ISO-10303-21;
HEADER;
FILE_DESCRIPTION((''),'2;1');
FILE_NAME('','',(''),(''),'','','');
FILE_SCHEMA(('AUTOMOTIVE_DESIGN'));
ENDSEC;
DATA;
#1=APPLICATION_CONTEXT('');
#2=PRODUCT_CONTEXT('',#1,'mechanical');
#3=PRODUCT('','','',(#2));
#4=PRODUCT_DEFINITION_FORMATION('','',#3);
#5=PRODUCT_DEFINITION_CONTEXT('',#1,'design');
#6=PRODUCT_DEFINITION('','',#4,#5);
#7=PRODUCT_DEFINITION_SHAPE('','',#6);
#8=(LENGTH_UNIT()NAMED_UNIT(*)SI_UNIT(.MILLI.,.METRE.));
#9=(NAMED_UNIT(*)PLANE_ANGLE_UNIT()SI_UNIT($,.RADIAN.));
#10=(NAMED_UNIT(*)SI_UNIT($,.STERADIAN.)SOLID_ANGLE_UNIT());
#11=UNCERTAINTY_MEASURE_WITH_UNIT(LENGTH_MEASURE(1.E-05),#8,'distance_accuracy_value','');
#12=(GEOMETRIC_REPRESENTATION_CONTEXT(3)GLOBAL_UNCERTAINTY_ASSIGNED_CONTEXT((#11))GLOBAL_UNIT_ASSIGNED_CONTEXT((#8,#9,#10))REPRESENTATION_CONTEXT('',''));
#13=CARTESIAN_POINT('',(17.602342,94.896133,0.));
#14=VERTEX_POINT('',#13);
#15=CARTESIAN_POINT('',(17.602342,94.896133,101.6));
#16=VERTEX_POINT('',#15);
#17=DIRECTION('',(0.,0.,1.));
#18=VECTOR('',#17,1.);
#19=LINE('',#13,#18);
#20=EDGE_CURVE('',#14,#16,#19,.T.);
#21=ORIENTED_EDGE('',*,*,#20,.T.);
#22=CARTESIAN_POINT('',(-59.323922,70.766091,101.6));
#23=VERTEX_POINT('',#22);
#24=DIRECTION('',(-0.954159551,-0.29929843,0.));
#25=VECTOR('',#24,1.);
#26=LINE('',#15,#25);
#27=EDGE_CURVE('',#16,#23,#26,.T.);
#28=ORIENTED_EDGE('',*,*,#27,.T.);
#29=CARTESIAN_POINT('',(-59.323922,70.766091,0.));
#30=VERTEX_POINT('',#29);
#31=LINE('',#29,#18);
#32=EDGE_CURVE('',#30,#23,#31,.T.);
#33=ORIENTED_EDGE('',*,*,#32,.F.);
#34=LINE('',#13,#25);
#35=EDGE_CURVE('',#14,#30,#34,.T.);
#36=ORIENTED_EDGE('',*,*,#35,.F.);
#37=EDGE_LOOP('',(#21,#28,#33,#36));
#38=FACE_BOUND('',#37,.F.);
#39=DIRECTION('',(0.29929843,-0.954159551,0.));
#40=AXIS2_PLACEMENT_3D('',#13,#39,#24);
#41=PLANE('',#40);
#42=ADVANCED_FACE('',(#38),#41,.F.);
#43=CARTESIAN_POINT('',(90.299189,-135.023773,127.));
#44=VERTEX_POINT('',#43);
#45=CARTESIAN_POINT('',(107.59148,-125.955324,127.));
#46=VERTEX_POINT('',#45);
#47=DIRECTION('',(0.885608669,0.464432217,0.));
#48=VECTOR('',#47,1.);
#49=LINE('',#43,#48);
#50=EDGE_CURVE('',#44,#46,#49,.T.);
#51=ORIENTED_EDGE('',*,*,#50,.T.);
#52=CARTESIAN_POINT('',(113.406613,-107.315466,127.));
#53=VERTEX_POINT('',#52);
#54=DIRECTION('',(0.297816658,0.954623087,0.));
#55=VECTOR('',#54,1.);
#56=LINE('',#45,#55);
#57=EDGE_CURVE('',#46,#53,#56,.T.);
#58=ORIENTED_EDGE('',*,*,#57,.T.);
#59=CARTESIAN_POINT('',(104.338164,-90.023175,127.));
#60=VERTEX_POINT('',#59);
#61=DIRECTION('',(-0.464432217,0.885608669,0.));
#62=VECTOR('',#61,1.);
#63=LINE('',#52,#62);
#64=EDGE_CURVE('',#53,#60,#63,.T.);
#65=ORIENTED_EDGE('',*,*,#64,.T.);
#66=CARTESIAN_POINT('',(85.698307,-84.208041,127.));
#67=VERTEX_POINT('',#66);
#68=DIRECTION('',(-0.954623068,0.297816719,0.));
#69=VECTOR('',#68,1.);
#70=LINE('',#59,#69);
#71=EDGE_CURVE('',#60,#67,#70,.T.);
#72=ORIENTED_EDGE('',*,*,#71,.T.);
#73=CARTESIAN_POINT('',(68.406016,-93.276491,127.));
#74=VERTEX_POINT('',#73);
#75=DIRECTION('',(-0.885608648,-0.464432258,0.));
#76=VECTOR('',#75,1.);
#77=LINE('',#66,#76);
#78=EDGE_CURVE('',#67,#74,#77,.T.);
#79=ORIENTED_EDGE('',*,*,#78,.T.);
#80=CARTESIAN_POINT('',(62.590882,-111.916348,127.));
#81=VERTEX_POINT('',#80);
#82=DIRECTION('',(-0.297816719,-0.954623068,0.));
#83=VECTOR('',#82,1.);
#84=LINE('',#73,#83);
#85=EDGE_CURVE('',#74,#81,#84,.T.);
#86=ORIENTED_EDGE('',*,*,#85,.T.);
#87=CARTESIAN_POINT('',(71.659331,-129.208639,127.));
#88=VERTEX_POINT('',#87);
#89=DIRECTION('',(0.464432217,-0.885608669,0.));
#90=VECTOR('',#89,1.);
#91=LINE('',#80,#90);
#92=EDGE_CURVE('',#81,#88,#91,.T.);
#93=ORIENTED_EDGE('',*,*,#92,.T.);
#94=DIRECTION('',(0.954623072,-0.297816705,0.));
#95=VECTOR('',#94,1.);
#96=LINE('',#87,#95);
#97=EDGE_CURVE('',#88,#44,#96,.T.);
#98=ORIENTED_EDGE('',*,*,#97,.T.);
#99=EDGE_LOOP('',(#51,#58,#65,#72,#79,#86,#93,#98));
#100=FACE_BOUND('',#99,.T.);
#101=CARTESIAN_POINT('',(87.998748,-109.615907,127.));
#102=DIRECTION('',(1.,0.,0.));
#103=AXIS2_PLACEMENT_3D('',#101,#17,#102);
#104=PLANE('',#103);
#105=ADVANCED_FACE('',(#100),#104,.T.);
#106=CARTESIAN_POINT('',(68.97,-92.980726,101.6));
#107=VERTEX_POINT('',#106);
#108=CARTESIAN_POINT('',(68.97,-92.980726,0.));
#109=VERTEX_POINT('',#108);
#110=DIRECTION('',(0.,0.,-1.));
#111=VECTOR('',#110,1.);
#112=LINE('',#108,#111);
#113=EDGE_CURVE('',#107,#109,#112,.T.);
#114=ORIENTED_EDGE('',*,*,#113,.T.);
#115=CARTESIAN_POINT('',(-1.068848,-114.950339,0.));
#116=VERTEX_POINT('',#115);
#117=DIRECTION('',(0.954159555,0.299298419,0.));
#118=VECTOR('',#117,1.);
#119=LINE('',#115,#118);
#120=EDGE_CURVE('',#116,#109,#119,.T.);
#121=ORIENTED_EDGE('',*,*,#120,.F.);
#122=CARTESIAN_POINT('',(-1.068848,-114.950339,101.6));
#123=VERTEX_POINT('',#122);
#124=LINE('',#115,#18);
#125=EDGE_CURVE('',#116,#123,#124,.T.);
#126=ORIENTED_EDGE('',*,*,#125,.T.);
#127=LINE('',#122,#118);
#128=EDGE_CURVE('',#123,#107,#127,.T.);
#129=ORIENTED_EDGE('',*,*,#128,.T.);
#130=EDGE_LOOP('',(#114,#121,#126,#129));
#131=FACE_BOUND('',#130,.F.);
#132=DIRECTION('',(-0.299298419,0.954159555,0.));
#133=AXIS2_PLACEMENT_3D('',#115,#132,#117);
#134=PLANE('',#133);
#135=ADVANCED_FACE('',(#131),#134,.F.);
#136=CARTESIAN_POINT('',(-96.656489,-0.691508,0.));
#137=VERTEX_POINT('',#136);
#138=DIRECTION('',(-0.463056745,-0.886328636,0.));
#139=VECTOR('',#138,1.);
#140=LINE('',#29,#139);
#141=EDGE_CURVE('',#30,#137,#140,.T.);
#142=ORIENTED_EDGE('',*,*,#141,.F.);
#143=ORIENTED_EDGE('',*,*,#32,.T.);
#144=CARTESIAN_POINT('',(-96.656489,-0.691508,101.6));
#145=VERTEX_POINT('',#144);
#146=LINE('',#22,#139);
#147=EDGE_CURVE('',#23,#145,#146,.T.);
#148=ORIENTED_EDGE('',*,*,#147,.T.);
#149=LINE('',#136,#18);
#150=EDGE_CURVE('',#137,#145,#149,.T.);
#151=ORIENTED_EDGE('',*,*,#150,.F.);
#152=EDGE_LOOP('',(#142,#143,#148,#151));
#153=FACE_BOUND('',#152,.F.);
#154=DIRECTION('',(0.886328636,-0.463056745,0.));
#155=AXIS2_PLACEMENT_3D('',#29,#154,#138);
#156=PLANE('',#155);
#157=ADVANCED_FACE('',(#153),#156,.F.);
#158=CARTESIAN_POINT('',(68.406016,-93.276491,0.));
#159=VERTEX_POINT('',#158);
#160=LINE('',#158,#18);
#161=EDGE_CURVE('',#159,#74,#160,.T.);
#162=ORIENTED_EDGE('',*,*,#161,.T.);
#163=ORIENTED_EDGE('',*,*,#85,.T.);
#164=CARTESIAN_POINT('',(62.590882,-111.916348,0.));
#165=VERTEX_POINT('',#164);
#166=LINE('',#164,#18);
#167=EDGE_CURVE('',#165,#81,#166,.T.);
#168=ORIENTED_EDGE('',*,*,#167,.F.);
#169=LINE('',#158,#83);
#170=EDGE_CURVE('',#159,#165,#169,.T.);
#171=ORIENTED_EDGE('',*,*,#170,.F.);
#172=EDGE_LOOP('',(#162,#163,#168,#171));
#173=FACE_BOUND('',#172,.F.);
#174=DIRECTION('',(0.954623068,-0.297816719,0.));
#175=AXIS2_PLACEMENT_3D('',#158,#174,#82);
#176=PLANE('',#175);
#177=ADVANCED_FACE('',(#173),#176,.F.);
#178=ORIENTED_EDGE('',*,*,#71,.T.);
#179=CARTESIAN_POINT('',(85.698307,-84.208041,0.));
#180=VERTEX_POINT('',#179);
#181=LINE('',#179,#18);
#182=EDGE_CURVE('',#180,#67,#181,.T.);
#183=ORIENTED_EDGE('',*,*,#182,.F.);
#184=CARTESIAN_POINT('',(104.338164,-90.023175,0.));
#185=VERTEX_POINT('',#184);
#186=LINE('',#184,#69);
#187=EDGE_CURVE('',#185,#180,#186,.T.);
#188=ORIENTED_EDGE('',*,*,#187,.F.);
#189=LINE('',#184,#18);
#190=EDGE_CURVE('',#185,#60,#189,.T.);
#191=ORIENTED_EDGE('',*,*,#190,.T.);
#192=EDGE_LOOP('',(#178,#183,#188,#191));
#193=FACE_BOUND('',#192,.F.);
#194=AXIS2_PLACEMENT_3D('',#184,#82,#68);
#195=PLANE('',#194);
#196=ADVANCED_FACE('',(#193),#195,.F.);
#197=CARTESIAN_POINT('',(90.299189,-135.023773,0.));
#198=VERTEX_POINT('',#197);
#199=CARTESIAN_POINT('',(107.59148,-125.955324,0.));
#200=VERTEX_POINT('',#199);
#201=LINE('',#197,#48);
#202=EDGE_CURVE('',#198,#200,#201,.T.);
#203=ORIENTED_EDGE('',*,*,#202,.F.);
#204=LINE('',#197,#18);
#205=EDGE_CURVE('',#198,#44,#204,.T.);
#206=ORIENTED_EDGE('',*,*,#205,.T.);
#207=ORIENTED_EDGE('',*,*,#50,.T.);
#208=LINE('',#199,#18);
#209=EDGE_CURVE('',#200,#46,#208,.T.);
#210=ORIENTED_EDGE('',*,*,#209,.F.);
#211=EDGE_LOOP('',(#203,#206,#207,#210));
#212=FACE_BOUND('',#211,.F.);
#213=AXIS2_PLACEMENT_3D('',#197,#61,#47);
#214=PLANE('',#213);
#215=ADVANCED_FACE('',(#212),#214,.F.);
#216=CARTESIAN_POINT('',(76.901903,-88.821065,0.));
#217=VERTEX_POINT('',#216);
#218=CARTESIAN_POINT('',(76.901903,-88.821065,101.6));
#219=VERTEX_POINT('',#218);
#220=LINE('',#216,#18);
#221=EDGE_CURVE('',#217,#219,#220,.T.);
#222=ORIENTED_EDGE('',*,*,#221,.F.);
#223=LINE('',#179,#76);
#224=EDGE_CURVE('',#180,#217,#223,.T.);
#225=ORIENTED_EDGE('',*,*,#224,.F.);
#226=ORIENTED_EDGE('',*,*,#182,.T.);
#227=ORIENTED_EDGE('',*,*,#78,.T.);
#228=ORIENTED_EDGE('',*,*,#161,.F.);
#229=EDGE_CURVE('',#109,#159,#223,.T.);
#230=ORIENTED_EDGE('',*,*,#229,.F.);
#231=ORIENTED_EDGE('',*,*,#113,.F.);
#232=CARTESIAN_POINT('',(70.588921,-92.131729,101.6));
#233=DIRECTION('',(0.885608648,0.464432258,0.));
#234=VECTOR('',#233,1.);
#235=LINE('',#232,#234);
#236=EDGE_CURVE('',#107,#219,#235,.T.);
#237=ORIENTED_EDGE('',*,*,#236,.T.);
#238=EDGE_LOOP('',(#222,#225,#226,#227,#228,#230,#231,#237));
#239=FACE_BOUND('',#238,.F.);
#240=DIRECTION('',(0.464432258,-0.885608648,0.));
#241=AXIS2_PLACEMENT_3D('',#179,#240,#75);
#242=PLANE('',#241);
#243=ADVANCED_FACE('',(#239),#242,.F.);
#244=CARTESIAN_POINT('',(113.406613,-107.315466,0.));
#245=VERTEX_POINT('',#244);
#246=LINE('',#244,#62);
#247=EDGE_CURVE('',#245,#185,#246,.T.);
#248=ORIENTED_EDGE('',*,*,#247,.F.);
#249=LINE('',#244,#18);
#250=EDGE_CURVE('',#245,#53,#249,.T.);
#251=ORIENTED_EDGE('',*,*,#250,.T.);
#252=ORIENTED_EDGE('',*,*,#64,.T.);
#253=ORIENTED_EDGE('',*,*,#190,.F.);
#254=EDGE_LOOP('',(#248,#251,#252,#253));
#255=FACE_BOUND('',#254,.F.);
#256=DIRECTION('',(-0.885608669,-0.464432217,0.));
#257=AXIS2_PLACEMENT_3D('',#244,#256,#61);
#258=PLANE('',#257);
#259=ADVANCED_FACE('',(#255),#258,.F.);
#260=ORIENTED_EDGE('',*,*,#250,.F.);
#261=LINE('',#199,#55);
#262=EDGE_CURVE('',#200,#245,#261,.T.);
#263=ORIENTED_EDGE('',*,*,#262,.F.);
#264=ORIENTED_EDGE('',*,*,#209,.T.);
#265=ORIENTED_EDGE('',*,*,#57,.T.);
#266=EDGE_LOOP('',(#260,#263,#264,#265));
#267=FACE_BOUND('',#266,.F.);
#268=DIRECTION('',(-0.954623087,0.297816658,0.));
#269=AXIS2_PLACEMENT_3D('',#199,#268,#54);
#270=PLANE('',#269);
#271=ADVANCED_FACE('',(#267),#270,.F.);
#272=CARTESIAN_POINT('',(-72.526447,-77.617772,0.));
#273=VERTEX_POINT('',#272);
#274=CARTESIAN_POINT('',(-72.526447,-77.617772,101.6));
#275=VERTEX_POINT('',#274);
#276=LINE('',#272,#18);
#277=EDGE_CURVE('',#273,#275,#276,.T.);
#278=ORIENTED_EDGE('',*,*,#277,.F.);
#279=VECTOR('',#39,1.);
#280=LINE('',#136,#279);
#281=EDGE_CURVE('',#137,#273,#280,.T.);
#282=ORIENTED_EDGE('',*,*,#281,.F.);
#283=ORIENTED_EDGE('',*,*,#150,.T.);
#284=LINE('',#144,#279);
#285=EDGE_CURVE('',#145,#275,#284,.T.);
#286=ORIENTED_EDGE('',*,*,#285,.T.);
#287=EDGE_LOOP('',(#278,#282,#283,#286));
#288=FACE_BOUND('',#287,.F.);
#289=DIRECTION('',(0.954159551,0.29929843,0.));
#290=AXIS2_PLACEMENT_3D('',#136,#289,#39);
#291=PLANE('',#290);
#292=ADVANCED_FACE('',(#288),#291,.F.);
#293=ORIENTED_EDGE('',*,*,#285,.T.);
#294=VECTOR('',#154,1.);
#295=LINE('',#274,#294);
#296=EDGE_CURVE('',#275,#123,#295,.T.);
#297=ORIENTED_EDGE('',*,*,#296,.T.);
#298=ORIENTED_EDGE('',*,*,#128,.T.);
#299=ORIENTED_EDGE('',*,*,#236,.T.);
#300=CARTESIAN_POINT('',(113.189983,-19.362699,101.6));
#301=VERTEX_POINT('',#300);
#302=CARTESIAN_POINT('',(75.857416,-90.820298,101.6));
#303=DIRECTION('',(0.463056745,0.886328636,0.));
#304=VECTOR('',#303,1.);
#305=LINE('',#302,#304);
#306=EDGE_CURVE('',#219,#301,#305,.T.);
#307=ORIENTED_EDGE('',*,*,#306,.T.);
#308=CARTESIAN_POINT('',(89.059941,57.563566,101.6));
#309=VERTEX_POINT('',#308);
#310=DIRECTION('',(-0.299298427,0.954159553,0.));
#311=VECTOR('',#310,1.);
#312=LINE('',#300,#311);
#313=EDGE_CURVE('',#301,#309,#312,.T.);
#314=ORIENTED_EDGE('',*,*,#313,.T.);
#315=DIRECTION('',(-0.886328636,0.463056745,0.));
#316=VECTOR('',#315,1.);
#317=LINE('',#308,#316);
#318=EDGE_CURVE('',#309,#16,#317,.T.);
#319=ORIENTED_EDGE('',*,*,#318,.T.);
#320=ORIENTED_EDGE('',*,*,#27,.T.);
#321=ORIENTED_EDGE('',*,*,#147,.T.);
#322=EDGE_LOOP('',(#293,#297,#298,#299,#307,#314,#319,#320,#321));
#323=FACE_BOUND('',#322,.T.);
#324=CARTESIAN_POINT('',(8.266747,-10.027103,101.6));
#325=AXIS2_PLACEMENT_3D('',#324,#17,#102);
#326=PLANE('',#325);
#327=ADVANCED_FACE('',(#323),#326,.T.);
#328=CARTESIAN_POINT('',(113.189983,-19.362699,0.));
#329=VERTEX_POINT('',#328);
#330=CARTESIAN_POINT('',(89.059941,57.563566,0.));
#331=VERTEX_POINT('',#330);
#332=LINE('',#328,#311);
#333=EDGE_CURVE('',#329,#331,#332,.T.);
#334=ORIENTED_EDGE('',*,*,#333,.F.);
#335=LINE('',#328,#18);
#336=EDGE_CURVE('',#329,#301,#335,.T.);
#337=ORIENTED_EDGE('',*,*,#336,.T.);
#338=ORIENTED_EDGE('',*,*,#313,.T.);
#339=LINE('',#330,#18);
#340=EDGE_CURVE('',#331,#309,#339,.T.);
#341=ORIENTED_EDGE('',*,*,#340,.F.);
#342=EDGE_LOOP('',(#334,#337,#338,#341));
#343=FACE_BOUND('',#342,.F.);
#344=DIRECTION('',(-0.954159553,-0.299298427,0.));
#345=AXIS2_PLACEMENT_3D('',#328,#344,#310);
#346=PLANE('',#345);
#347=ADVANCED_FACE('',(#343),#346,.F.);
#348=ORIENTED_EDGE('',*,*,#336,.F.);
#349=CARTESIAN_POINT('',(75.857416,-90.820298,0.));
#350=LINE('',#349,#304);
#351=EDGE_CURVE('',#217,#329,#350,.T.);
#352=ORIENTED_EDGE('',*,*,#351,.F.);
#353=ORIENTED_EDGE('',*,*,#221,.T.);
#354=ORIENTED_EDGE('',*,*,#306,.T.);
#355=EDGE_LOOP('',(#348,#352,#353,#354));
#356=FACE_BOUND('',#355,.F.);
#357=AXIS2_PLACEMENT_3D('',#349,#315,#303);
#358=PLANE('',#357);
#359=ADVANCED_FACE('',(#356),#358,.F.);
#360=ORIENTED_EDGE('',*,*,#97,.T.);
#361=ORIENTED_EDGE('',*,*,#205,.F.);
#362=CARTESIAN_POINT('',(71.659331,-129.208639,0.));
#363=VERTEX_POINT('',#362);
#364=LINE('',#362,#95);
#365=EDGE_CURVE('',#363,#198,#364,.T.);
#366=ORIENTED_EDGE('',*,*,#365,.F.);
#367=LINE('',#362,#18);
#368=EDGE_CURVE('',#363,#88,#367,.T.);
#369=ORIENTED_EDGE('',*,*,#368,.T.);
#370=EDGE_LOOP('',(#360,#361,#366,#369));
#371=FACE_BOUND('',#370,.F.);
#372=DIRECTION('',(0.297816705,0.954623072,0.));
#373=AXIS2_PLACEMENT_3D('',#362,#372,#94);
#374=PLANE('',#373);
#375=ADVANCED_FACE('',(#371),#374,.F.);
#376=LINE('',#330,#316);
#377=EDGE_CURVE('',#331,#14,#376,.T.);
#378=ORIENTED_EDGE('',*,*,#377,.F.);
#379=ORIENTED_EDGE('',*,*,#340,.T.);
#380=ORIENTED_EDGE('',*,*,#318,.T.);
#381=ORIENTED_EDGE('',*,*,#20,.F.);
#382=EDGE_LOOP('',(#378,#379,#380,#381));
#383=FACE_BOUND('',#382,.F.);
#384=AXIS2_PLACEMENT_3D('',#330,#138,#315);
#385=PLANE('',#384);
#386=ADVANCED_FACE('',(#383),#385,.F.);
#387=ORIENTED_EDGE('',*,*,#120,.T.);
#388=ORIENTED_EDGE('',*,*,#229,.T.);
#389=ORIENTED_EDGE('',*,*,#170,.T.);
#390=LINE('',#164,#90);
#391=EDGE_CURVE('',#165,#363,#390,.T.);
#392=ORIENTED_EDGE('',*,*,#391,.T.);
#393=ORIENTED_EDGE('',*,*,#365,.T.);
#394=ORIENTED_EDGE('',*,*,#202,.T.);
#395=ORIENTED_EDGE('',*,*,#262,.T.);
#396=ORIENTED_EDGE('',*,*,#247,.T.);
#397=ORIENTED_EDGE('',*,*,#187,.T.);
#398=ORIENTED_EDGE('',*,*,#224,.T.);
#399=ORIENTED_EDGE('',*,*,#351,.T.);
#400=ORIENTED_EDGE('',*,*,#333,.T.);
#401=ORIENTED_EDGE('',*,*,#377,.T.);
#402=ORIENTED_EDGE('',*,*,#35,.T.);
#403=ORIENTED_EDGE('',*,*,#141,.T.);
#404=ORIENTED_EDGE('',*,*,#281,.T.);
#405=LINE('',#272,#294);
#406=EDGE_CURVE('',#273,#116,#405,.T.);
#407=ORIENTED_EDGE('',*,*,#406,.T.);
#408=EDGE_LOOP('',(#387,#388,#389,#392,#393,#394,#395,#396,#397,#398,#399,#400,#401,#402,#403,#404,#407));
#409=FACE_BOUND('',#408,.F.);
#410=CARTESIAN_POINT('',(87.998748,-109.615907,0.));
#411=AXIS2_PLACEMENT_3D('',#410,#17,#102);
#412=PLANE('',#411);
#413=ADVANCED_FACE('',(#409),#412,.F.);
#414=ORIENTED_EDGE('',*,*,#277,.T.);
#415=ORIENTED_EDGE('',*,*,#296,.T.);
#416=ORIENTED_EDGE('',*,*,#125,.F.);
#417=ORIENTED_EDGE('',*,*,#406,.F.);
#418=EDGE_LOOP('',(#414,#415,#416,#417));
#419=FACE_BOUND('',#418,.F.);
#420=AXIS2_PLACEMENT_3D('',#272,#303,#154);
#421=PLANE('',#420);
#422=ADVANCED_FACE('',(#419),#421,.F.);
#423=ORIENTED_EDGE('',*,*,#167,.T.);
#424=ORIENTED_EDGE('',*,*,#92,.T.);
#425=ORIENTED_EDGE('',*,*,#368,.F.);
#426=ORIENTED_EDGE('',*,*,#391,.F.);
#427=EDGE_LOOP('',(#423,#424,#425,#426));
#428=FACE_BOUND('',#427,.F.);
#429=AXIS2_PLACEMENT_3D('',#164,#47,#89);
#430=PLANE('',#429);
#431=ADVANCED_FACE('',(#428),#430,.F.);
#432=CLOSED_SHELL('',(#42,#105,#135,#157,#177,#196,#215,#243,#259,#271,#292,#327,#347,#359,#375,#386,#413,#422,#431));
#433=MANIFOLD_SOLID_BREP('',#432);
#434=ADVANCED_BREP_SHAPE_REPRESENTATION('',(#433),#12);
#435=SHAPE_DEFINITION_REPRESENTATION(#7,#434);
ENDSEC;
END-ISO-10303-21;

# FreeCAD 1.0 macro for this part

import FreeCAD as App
import Part
import Sketcher
Q = App.Units.Quantity


def add_polygon(sketch, points):
    """Adds a closed chain of lines whose ends are joined by coincident constraints."""
    first, n = sketch.GeometryCount, len(points)
    for a, b in zip(points, points[1:] + points[:1]):
        sketch.addGeometry(Part.LineSegment(App.Vector(*a, 0), App.Vector(*b, 0)), False)
    for i in range(n):
        sketch.addConstraint(Sketcher.Constraint("Coincident", first + i, 2, first + (i + 1) % n, 1))

doc = App.newDocument("Part")
params = doc.addObject("Spreadsheet::Sheet", "Params")
for row, (alias, value) in enumerate([
    ("pad1_length", "4 in"),
    ("pad2_length", "5 in"),
], start=1):
    params.set(f"A{row}", alias)
    params.set(f"B{row}", "=" + value)
    params.setAlias(f"B{row}", alias)

body = doc.addObject("PartDesign::Body", "Body")

# Sketch on XY plane
sketch1 = body.newObject("Sketcher::SketchObject", "Sketch")
sketch1.AttachmentSupport = (doc.getObject("XY_Plane"), [""])
sketch1.MapMode = "FlatFace"
add_polygon(sketch1, [(-1, -115), (76, -91), (113, -19), (89, 58), (18, 95), (-59, 71), (-97, -1), (-73, -78)])  # lines 0-7
sketch1.addConstraint(Sketcher.Constraint("Perpendicular", 0, 2))
sketch1.addConstraint(Sketcher.Constraint("Perpendicular", 1, 3))
sketch1.addConstraint(Sketcher.Constraint("Perpendicular", 2, 4))
sketch1.addConstraint(Sketcher.Constraint("Perpendicular", 3, 5))
sketch1.addConstraint(Sketcher.Constraint("Perpendicular", 4, 6))
sketch1.addConstraint(Sketcher.Constraint("Perpendicular", 5, 7))
sketch1.addConstraint(Sketcher.Constraint("Equal", 0, 1))
sketch1.addConstraint(Sketcher.Constraint("Equal", 1, 2))
sketch1.addConstraint(Sketcher.Constraint("Equal", 2, 3))
sketch1.addConstraint(Sketcher.Constraint("Equal", 3, 4))
sketch1.addConstraint(Sketcher.Constraint("Equal", 4, 5))
sketch1.addConstraint(Sketcher.Constraint("DistanceX", 4, 2, 0, 2, Q("5.3220999 in")))
sketch1.addConstraint(Sketcher.Constraint("DistanceY", 1, 2, -1, 1, Q("19.362699 mm")))
sketch1.addConstraint(Sketcher.Constraint("DistanceY", 0, 2, 1, 2, Q("71.457599 mm")))
sketch1.addConstraint(Sketcher.Constraint("DistanceX", -1, 1, 2, 2, Q("89.059941 mm")))
sketch1.addConstraint(Sketcher.Constraint("DistanceY", -1, 1, 4, 2, Q("70.766091 mm")))
pad1 = body.newObject("PartDesign::Pad", "Pad")
pad1.Profile = sketch1
pad1.setExpression("Length", "Params.pad1_length")

# Sketch on XY plane
sketch2 = body.newObject("Sketcher::SketchObject", "Sketch001")
sketch2.AttachmentSupport = (doc.getObject("XY_Plane"), [""])
sketch2.MapMode = "FlatFace"
add_polygon(sketch2, [(72, -129), (90, -135), (108, -126), (113, -107), (104, -90), (86, -84), (68, -93), (63, -112)])  # lines 0-7
sketch2.addConstraint(Sketcher.Constraint("Perpendicular", 0, 2))
sketch2.addConstraint(Sketcher.Constraint("Perpendicular", 1, 3))
sketch2.addConstraint(Sketcher.Constraint("Perpendicular", 2, 4))
sketch2.addConstraint(Sketcher.Constraint("Perpendicular", 3, 5))
sketch2.addConstraint(Sketcher.Constraint("Perpendicular", 4, 6))
sketch2.addConstraint(Sketcher.Constraint("Perpendicular", 5, 7))
sketch2.addConstraint(Sketcher.Constraint("Equal", 0, 1))
sketch2.addConstraint(Sketcher.Constraint("Equal", 1, 2))
sketch2.addConstraint(Sketcher.Constraint("Equal", 2, 3))
sketch2.addConstraint(Sketcher.Constraint("Equal", 3, 4))
sketch2.addConstraint(Sketcher.Constraint("Equal", 4, 5))
sketch2.addConstraint(Sketcher.Constraint("DistanceY", 0, 2, 3, 2, Q("45.000598 mm")))
sketch2.addConstraint(Sketcher.Constraint("Distance", 4, Q("19.525882 mm")))
sketch2.addConstraint(Sketcher.Constraint("DistanceX", -1, 1, 0, 2, Q("90.299189 mm")))
sketch2.addConstraint(Sketcher.Constraint("DistanceX", -1, 1, 1, 2, Q("107.59148 mm")))
sketch2.addConstraint(Sketcher.Constraint("DistanceY", 4, 2, -1, 1, Q("84.208041 mm")))
pad2 = body.newObject("PartDesign::Pad", "Pad001")
pad2.Profile = sketch2
pad2.setExpression("Length", "Params.pad2_length")

doc.recompute()
